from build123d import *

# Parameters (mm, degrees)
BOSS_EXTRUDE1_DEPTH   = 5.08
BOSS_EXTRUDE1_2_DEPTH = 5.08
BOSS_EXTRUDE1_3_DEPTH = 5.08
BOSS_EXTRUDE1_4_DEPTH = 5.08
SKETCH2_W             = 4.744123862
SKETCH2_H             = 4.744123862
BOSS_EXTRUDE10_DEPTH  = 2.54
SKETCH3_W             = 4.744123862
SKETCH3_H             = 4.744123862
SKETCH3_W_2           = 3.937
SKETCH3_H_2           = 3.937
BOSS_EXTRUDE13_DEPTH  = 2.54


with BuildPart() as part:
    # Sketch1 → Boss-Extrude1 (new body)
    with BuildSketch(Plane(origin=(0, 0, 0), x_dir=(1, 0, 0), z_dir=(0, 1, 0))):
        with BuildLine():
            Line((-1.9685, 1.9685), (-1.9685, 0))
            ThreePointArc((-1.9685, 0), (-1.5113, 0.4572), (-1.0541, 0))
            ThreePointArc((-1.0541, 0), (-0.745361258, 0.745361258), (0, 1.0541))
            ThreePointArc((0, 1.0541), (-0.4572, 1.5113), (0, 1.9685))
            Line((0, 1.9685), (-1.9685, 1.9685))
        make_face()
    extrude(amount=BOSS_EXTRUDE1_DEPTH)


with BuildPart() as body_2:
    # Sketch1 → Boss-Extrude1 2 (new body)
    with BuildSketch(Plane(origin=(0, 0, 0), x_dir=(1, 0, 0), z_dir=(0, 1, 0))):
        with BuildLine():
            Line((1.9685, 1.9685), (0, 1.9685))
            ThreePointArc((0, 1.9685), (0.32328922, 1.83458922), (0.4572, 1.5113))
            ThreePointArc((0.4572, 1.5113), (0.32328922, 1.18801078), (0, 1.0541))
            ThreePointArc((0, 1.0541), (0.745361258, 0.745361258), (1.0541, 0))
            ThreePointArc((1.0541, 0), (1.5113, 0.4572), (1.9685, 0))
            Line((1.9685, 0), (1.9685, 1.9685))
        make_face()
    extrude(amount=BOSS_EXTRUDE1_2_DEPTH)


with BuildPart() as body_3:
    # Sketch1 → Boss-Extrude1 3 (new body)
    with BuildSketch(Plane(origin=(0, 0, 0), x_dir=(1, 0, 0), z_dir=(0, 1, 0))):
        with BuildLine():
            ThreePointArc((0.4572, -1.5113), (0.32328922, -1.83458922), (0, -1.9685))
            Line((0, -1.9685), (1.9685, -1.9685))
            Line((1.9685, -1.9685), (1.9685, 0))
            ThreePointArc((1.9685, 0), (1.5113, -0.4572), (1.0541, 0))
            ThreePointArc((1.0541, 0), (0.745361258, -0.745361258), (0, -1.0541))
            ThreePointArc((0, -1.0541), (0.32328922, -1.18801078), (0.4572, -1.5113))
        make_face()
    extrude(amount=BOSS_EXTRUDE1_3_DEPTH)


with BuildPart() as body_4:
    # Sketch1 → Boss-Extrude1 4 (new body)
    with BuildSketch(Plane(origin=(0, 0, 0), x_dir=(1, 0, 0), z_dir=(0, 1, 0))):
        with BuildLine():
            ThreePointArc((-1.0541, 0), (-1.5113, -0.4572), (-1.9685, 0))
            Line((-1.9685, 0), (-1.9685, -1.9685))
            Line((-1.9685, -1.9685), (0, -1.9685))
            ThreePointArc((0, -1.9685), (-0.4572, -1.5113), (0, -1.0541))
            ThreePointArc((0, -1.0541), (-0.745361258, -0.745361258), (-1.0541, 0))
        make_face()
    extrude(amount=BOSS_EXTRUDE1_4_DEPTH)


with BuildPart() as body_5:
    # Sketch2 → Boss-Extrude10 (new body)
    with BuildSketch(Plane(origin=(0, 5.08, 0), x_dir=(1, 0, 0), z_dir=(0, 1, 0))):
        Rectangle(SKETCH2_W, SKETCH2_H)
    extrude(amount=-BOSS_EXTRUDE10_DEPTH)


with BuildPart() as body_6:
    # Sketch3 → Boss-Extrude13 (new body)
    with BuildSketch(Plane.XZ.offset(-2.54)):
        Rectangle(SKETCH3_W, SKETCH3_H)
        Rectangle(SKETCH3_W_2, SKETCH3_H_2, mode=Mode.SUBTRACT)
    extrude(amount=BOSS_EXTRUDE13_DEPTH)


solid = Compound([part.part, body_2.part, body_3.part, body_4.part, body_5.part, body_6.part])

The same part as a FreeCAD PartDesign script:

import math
import FreeCAD as App
import Part
import Sketcher
Q = App.Units.Quantity


def add_polygon(sketch, points):
    """Adds a closed chain of lines whose ends are joined by coincident constraints."""
    first, n = sketch.GeometryCount, len(points)
    for a, b in zip(points, points[1:] + points[:1]):
        sketch.addGeometry(Part.LineSegment(App.Vector(*a, 0), App.Vector(*b, 0)), False)
    for i in range(n):
        sketch.addConstraint(Sketcher.Constraint("Coincident", first + i, 2, first + (i + 1) % n, 1))

doc = App.newDocument("Part")
body = doc.addObject("PartDesign::Body", "Body")

# Sketch on XZ plane
sketch1 = body.newObject("Sketcher::SketchObject", "Sketch")
sketch1.AttachmentSupport = (doc.getObject("XZ_Plane"), [""])
sketch1.MapMode = "FlatFace"
sketch1.addGeometry([
    Part.LineSegment(App.Vector(-1.97, -1.97, 0), App.Vector(-1.97, 0, 0)),  # 0
    Part.ArcOfCircle(Part.Circle(App.Vector(-1.51, 0, 0), App.Vector(0, 0, 1), 0.46), math.radians(180), math.radians(360)),  # 1
    Part.ArcOfCircle(Part.Circle(App.Vector(0, 0, 0), App.Vector(0, 0, 1), 1.05), math.radians(180), math.radians(270)),  # 2
    Part.ArcOfCircle(Part.Circle(App.Vector(0, -1.51, 0), App.Vector(0, 0, 1), 0.46), math.radians(90), math.radians(270)),  # 3
    Part.LineSegment(App.Vector(0, -1.97, 0), App.Vector(-1.97, -1.97, 0)),  # 4
], False)
sketch1.addConstraint([
    Sketcher.Constraint("Tangent", 0, 2, 1, 1),
    Sketcher.Constraint("Tangent", 1, 2, 2, 1),
    Sketcher.Constraint("Tangent", 2, 2, 3, 1),
    Sketcher.Constraint("Tangent", 3, 2, 4, 1),
    Sketcher.Constraint("Coincident", 4, 2, 0, 1),
    Sketcher.Constraint("Vertical", 0),
    Sketcher.Constraint("Horizontal", 4),
    Sketcher.Constraint("Coincident", 2, 3, -1, 1),
    Sketcher.Constraint("Equal", 1, 3),
    Sketcher.Constraint("PointOnObject", 1, 3, -1),
    Sketcher.Constraint("PointOnObject", 3, 3, -2),
    Sketcher.Constraint("Radius", 1, Q("0.018 in")),
    Sketcher.Constraint("Radius", 2, Q("0.0415 in")),
])
pad1 = body.newObject("PartDesign::Pad", "Pad")
pad1.Profile = sketch1
pad1.Length = Q("0.2 in")
pad1.Reversed = True
body2 = doc.addObject("PartDesign::Body", "Body001")

# Sketch on XZ plane
sketch2 = body2.newObject("Sketcher::SketchObject", "Sketch001")
sketch2.AttachmentSupport = (doc.getObject("XZ_Plane001"), [""])
sketch2.MapMode = "FlatFace"
sketch2.addGeometry([
    Part.LineSegment(App.Vector(1.97, -1.97, 0), App.Vector(0, -1.97, 0)),  # 0
    Part.ArcOfCircle(Part.Circle(App.Vector(0, -1.51, 0), App.Vector(0, 0, 1), 0.46), math.radians(-90), math.radians(0)),  # 1
    Part.ArcOfCircle(Part.Circle(App.Vector(0, -1.51, 0), App.Vector(0, 0, 1), 0.46), math.radians(0), math.radians(90)),  # 2
    Part.ArcOfCircle(Part.Circle(App.Vector(0, 0, 0), App.Vector(0, 0, 1), 1.05), math.radians(-90), math.radians(0)),  # 3
    Part.ArcOfCircle(Part.Circle(App.Vector(1.51, 0, 0), App.Vector(0, 0, 1), 0.46), math.radians(180), math.radians(360)),  # 4
    Part.LineSegment(App.Vector(1.97, 0, 0), App.Vector(1.97, -1.97, 0)),  # 5
], False)
sketch2.addConstraint([
    Sketcher.Constraint("Tangent", 0, 2, 1, 1),
    Sketcher.Constraint("Tangent", 1, 2, 2, 1),
    Sketcher.Constraint("Tangent", 2, 2, 3, 1),
    Sketcher.Constraint("Tangent", 3, 2, 4, 1),
    Sketcher.Constraint("Tangent", 4, 2, 5, 1),
    Sketcher.Constraint("Coincident", 5, 2, 0, 1),
    Sketcher.Constraint("Horizontal", 0),
    Sketcher.Constraint("Vertical", 5),
    Sketcher.Constraint("Coincident", 3, 3, -1, 1),
    Sketcher.Constraint("Equal", 1, 2),
    Sketcher.Constraint("Equal", 2, 4),
    Sketcher.Constraint("PointOnObject", 1, 3, -2),
    Sketcher.Constraint("PointOnObject", 4, 3, -1),
    Sketcher.Constraint("Horizontal", 2, 3, 1, 2),
    Sketcher.Constraint("Radius", 1, Q("0.018 in")),
    Sketcher.Constraint("Radius", 3, Q("0.0415 in")),
])
pad2 = body2.newObject("PartDesign::Pad", "Pad001")
pad2.Profile = sketch2
pad2.Length = Q("0.2 in")
pad2.Reversed = True
body3 = doc.addObject("PartDesign::Body", "Body002")

# Sketch on XZ plane
sketch3 = body3.newObject("Sketcher::SketchObject", "Sketch002")
sketch3.AttachmentSupport = (doc.getObject("XZ_Plane002"), [""])
sketch3.MapMode = "FlatFace"
sketch3.addGeometry([
    Part.ArcOfCircle(Part.Circle(App.Vector(0, 1.51, 0), App.Vector(0, 0, 1), 0.46), math.radians(0), math.radians(90)),  # 0
    Part.LineSegment(App.Vector(0, 1.97, 0), App.Vector(1.97, 1.97, 0)),  # 1
    Part.LineSegment(App.Vector(1.97, 1.97, 0), App.Vector(1.97, 0, 0)),  # 2
    Part.ArcOfCircle(Part.Circle(App.Vector(1.51, 0, 0), App.Vector(0, 0, 1), 0.46), math.radians(0), math.radians(180)),  # 3
    Part.ArcOfCircle(Part.Circle(App.Vector(0, 0, 0), App.Vector(0, 0, 1), 1.05), math.radians(0), math.radians(90)),  # 4
    Part.ArcOfCircle(Part.Circle(App.Vector(0, 1.51, 0), App.Vector(0, 0, 1), 0.46), math.radians(-90), math.radians(0)),  # 5
], False)
sketch3.addConstraint([
    Sketcher.Constraint("Tangent", 0, 2, 1, 1),
    Sketcher.Constraint("Coincident", 1, 2, 2, 1),
    Sketcher.Constraint("Tangent", 2, 2, 3, 1),
    Sketcher.Constraint("Tangent", 3, 2, 4, 1),
    Sketcher.Constraint("Tangent", 4, 2, 5, 1),
    Sketcher.Constraint("Tangent", 5, 2, 0, 1),
    Sketcher.Constraint("Horizontal", 1),
    Sketcher.Constraint("Vertical", 2),
    Sketcher.Constraint("Coincident", 4, 3, -1, 1),
    Sketcher.Constraint("Equal", 0, 3),
    Sketcher.Constraint("Equal", 3, 5),
    Sketcher.Constraint("PointOnObject", 0, 3, -2),
    Sketcher.Constraint("PointOnObject", 3, 3, -1),
    Sketcher.Constraint("Horizontal", 0, 3, 5, 2),
    Sketcher.Constraint("Radius", 0, Q("0.018 in")),
    Sketcher.Constraint("Radius", 4, Q("0.0415 in")),
])
pad3 = body3.newObject("PartDesign::Pad", "Pad002")
pad3.Profile = sketch3
pad3.Length = Q("0.2 in")
pad3.Reversed = True
body4 = doc.addObject("PartDesign::Body", "Body003")

# Sketch on XZ plane
sketch4 = body4.newObject("Sketcher::SketchObject", "Sketch003")
sketch4.AttachmentSupport = (doc.getObject("XZ_Plane003"), [""])
sketch4.MapMode = "FlatFace"
sketch4.addGeometry([
    Part.ArcOfCircle(Part.Circle(App.Vector(-1.51, 0, 0), App.Vector(0, 0, 1), 0.46), math.radians(0), math.radians(180)),  # 0
    Part.LineSegment(App.Vector(-1.97, 0, 0), App.Vector(-1.97, 1.97, 0)),  # 1
    Part.LineSegment(App.Vector(-1.97, 1.97, 0), App.Vector(0, 1.97, 0)),  # 2
    Part.ArcOfCircle(Part.Circle(App.Vector(0, 1.51, 0), App.Vector(0, 0, 1), 0.46), math.radians(90), math.radians(270)),  # 3
    Part.ArcOfCircle(Part.Circle(App.Vector(0, 0, 0), App.Vector(0, 0, 1), 1.05), math.radians(90), math.radians(180)),  # 4
], False)
sketch4.addConstraint([
    Sketcher.Constraint("Tangent", 0, 2, 1, 1),
    Sketcher.Constraint("Coincident", 1, 2, 2, 1),
    Sketcher.Constraint("Tangent", 2, 2, 3, 1),
    Sketcher.Constraint("Tangent", 3, 2, 4, 1),
    Sketcher.Constraint("Tangent", 4, 2, 0, 1),
    Sketcher.Constraint("Vertical", 1),
    Sketcher.Constraint("Horizontal", 2),
    Sketcher.Constraint("Coincident", 4, 3, -1, 1),
    Sketcher.Constraint("Equal", 0, 3),
    Sketcher.Constraint("PointOnObject", 0, 3, -1),
    Sketcher.Constraint("PointOnObject", 3, 3, -2),
    Sketcher.Constraint("Radius", 0, Q("0.018 in")),
    Sketcher.Constraint("Radius", 4, Q("0.0415 in")),
])
pad4 = body4.newObject("PartDesign::Pad", "Pad003")
pad4.Profile = sketch4
pad4.Length = Q("0.2 in")
pad4.Reversed = True
body5 = doc.addObject("PartDesign::Body", "Body004")

# Sketch on XZ plane
sketch5 = body5.newObject("Sketcher::SketchObject", "Sketch004")
sketch5.AttachmentSupport = (doc.getObject("XZ_Plane004"), [""])
sketch5.MapMode = "FlatFace"
sketch5.AttachmentOffset = App.Placement(App.Vector(0, 0, -0.2 * 25.4), App.Rotation())
add_polygon(sketch5, [(-2.4, -2.4), (-2.4, 2.4), (2.4, 2.4), (2.4, -2.4)])  # lines 0-3
sketch5.addConstraint([
    Sketcher.Constraint("Vertical", 0),
    Sketcher.Constraint("Horizontal", 1),
    Sketcher.Constraint("Vertical", 2),
    Sketcher.Constraint("Horizontal", 3),
    Sketcher.Constraint("Symmetric", 0, 2, 2, 2, -1, 1),
    Sketcher.Constraint("Equal", 3, 0),
    Sketcher.Constraint("DistanceX", 1, 1, 1, 2, 4.744124),
])
pad5 = body5.newObject("PartDesign::Pad", "Pad004")
pad5.Profile = sketch5
pad5.Length = Q("0.1 in")
body6 = doc.addObject("PartDesign::Body", "Body005")

# Sketch on XZ plane
sketch6 = body6.newObject("Sketcher::SketchObject", "Sketch005")
sketch6.AttachmentSupport = (doc.getObject("XZ_Plane005"), [""])
sketch6.MapMode = "FlatFace"
sketch6.AttachmentOffset = App.Placement(App.Vector(0, 0, -0.1 * 25.4), App.Rotation())
add_polygon(sketch6, [(-2.4, 2.4), (-2.4, -2.4), (2.4, -2.4), (2.4, 2.4)])  # lines 0-3
add_polygon(sketch6, [(2, -2), (-2, -2), (-2, 2), (2, 2)])  # lines 4-7
sketch6.addConstraint([
    Sketcher.Constraint("Vertical", 0),
    Sketcher.Constraint("Horizontal", 1),
    Sketcher.Constraint("Vertical", 2),
    Sketcher.Constraint("Horizontal", 3),
    Sketcher.Constraint("Horizontal", 4),
    Sketcher.Constraint("Vertical", 5),
    Sketcher.Constraint("Horizontal", 6),
    Sketcher.Constraint("Vertical", 7),
    Sketcher.Constraint("Symmetric", 0, 2, 2, 2, -1, 1),
    Sketcher.Constraint("Symmetric", 4, 2, 6, 2, -1, 1),
    Sketcher.Constraint("Equal", 3, 0),
    Sketcher.Constraint("Equal", 6, 5),
    Sketcher.Constraint("DistanceX", 4, 2, 4, 1, Q("0.155 in")),
    Sketcher.Constraint("DistanceX", 1, 1, 1, 2, 4.744124),
])
pad6 = body6.newObject("PartDesign::Pad", "Pad005")
pad6.Profile = sketch6
pad6.Length = Q("0.1 in")

doc.recompute()
